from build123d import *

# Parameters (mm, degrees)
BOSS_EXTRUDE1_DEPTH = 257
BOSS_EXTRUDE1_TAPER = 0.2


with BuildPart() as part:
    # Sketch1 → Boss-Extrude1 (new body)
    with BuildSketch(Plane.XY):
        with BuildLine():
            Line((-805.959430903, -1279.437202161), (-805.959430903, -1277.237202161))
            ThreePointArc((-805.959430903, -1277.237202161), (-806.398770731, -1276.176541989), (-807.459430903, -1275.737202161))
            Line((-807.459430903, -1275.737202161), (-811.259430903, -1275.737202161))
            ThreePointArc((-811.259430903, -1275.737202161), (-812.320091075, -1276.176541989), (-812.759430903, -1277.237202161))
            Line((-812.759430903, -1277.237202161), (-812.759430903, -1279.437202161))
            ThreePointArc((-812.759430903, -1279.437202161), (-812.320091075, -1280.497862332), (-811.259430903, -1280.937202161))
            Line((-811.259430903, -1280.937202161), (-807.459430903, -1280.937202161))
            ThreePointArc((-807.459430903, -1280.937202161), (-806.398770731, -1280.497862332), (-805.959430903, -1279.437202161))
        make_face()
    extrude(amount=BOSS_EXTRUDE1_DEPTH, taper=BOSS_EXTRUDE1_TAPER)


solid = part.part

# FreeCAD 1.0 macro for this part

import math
import FreeCAD as App
import Part
import Sketcher
Q = App.Units.Quantity

doc = App.newDocument("Part")
body = doc.addObject("PartDesign::Body", "Body")

sketch1 = doc.addObject("Sketcher::SketchObject", "Sketch")
body.addObject(sketch1)
sketch1.AttachmentSupport = (doc.XY_Plane, [""])
sketch1.MapMode = "FlatFace"
sketch1.addGeometry([
    Part.LineSegment(App.Vector(-806, -1279.4, 0), App.Vector(-806, -1277.2, 0)),
    Part.ArcOfCircle(Part.Circle(App.Vector(-807.5, -1277.2, 0), App.Vector(0, 0, 1), 1.5), math.radians(0), math.radians(90)),
    Part.LineSegment(App.Vector(-807.5, -1275.7, 0), App.Vector(-811.3, -1275.7, 0)),
    Part.ArcOfCircle(Part.Circle(App.Vector(-811.3, -1277.2, 0), App.Vector(0, 0, 1), 1.5), math.radians(90), math.radians(180)),
    Part.LineSegment(App.Vector(-812.8, -1277.2, 0), App.Vector(-812.8, -1279.4, 0)),
    Part.ArcOfCircle(Part.Circle(App.Vector(-811.3, -1279.4, 0), App.Vector(0, 0, 1), 1.5), math.radians(-180), math.radians(-90)),
    Part.LineSegment(App.Vector(-811.3, -1280.9, 0), App.Vector(-807.5, -1280.9, 0)),
    Part.ArcOfCircle(Part.Circle(App.Vector(-807.5, -1279.4, 0), App.Vector(0, 0, 1), 1.5), math.radians(-90), math.radians(0)),
], False)
sketch1.addConstraint([
    Sketcher.Constraint("Tangent", 0, 2, 1, 1),
    Sketcher.Constraint("Tangent", 1, 2, 2, 1),
    Sketcher.Constraint("Tangent", 2, 2, 3, 1),
    Sketcher.Constraint("Tangent", 3, 2, 4, 1),
    Sketcher.Constraint("Tangent", 4, 2, 5, 1),
    Sketcher.Constraint("Tangent", 5, 2, 6, 1),
    Sketcher.Constraint("Tangent", 6, 2, 7, 1),
    Sketcher.Constraint("Tangent", 7, 2, 0, 1),
    Sketcher.Constraint("Vertical", 0),
    Sketcher.Constraint("Horizontal", 2),
    Sketcher.Constraint("Vertical", 4),
    Sketcher.Constraint("Horizontal", 6),
    Sketcher.Constraint("Equal", 1, 3),
    Sketcher.Constraint("Equal", 3, 5),
    Sketcher.Constraint("Equal", 5, 7),
    Sketcher.Constraint("Radius", 1, Q("1.5 mm")),
    Sketcher.Constraint("DistanceX", 2, 2, 2, 1, Q("3.8 mm")),
    Sketcher.Constraint("DistanceY", 0, 1, 0, 2, Q("2.2 mm")),
    Sketcher.Constraint("DistanceX", 1, 3, -1, 1, Q("807.459431 mm")),
    Sketcher.Constraint("DistanceY", 1, 3, -1, 1, Q("1277.237202 mm")),
])
pad1 = doc.addObject("PartDesign::Pad", "Pad")
body.addObject(pad1)
pad1.Profile = sketch1
pad1.Length = 257
pad1.TaperAngle = -0.2

doc.recompute()
